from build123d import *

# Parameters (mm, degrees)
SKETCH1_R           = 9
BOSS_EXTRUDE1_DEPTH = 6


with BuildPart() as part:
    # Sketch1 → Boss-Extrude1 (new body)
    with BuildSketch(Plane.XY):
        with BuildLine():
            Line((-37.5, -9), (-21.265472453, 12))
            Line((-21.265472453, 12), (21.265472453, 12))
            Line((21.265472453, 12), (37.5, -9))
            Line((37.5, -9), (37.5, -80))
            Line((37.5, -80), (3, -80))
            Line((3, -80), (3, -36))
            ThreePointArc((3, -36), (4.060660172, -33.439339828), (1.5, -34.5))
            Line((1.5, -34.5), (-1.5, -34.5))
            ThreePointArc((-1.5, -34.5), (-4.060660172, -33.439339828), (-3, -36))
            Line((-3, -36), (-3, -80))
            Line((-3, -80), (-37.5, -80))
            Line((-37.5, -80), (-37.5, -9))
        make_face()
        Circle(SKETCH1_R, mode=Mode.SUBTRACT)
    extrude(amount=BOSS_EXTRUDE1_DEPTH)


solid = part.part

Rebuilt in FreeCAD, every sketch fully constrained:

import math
import FreeCAD as App
import Part
import Sketcher

doc = App.newDocument("Part")
params = doc.addObject("Spreadsheet::Sheet", "Params")
for row, (alias, value) in enumerate([
    ("sketch1_diameter", "18 mm"),
    ("sketch1_radius", "1.5 mm"),
    ("sketch1_width", "3 mm"),
    ("sketch1_height", "71 mm"),
    ("sketch1_height2", "44 mm"),
    ("pad1_length", "6 mm"),
], start=1):
    params.set(f"A{row}", alias)
    params.set(f"B{row}", "=" + value)
    params.setAlias(f"B{row}", alias)

body = doc.addObject("PartDesign::Body", "Body")

# Sketch on XY plane
sketch1 = body.newObject("Sketcher::SketchObject", "Sketch")
sketch1.AttachmentSupport = (doc.getObject("XY_Plane"), [""])
sketch1.MapMode = "FlatFace"
sketch1.addGeometry(Part.LineSegment(App.Vector(-21.3, 12, 0), App.Vector(-37.5, -9, 0)), False)
sketch1.addGeometry(Part.LineSegment(App.Vector(-37.5, -9, 0), App.Vector(-37.5, -80, 0)), False)
sketch1.addGeometry(Part.LineSegment(App.Vector(-37.5, -80, 0), App.Vector(-3, -80, 0)), False)
sketch1.addGeometry(Part.LineSegment(App.Vector(-3, -80, 0), App.Vector(-3, -36, 0)), False)
sketch1.addGeometry(Part.ArcOfCircle(Part.Circle(App.Vector(-3, -34.5, 0), App.Vector(0, 0, 1), 1.5), math.radians(0), math.radians(270)), False)
sketch1.addGeometry(Part.LineSegment(App.Vector(-1.5, -34.5, 0), App.Vector(1.5, -34.5, 0)), False)
sketch1.addGeometry(Part.ArcOfCircle(Part.Circle(App.Vector(3, -34.5, 0), App.Vector(0, 0, 1), 1.5), math.radians(-90), math.radians(180)), False)
sketch1.addGeometry(Part.LineSegment(App.Vector(3, -36, 0), App.Vector(3, -80, 0)), False)
sketch1.addGeometry(Part.LineSegment(App.Vector(3, -80, 0), App.Vector(37.5, -80, 0)), False)
sketch1.addGeometry(Part.LineSegment(App.Vector(37.5, -80, 0), App.Vector(37.5, -9, 0)), False)
sketch1.addGeometry(Part.LineSegment(App.Vector(37.5, -9, 0), App.Vector(21.3, 12, 0)), False)
sketch1.addGeometry(Part.LineSegment(App.Vector(21.3, 12, 0), App.Vector(-21.3, 12, 0)), False)
sketch1.addGeometry(Part.Circle(App.Vector(0, 0, 0), App.Vector(0, 0, 1), 9), False)
sketch1.addConstraint(Sketcher.Constraint("Coincident", 0, 2, 1, 1))
sketch1.addConstraint(Sketcher.Constraint("Coincident", 1, 2, 2, 1))
sketch1.addConstraint(Sketcher.Constraint("Coincident", 2, 2, 3, 1))
sketch1.addConstraint(Sketcher.Constraint("Coincident", 3, 2, 4, 2))
sketch1.addConstraint(Sketcher.Constraint("Coincident", 4, 1, 5, 1))
sketch1.addConstraint(Sketcher.Constraint("Coincident", 5, 2, 6, 2))
sketch1.addConstraint(Sketcher.Constraint("Coincident", 6, 1, 7, 1))
sketch1.addConstraint(Sketcher.Constraint("Coincident", 7, 2, 8, 1))
sketch1.addConstraint(Sketcher.Constraint("Coincident", 8, 2, 9, 1))
sketch1.addConstraint(Sketcher.Constraint("Coincident", 9, 2, 10, 1))
sketch1.addConstraint(Sketcher.Constraint("Coincident", 10, 2, 11, 1))
sketch1.addConstraint(Sketcher.Constraint("Coincident", 11, 2, 0, 1))
sketch1.addConstraint(Sketcher.Constraint("Vertical", 1))
sketch1.addConstraint(Sketcher.Constraint("Horizontal", 2))
sketch1.addConstraint(Sketcher.Constraint("Vertical", 3))
sketch1.addConstraint(Sketcher.Constraint("Horizontal", 5))
sketch1.addConstraint(Sketcher.Constraint("Vertical", 7))
sketch1.addConstraint(Sketcher.Constraint("Horizontal", 8))
sketch1.addConstraint(Sketcher.Constraint("Vertical", 9))
sketch1.addConstraint(Sketcher.Constraint("Horizontal", 11))
sketch1.addConstraint(Sketcher.Constraint("Coincident", 12, 3, -1, 1))
sketch1.addConstraint(Sketcher.Constraint("Equal", 4, 6))
sketch1.addConstraint(Sketcher.Constraint("Symmetric", 4, 3, 6, 3, -2))
sketch1.addConstraint(Sketcher.Constraint("Symmetric", 2, 2, 7, 2, -2))
sketch1.addConstraint(Sketcher.Constraint("Symmetric", 0, 2, 9, 2, -2))
sketch1.addConstraint(Sketcher.Constraint("Horizontal", 6, 3, 4, 1))
sketch1.addConstraint(Sketcher.Constraint("Vertical", 4, 3, 2, 2))
sketch1.addConstraint(Sketcher.Constraint("Equal", 0, 10))
sketch1.addConstraint(Sketcher.Constraint("Diameter", 12, 18.0))
sketch1.addConstraint(Sketcher.Constraint("Radius", 4, 1.5))
sketch1.addConstraint(Sketcher.Constraint("DistanceX", 5, 1, 5, 2, 3.0))
sketch1.addConstraint(Sketcher.Constraint("DistanceY", 1, 2, 1, 1, 71.0))
sketch1.addConstraint(Sketcher.Constraint("DistanceY", 3, 1, 3, 2, 44.0))
sketch1.addConstraint(Sketcher.Constraint("DistanceX", 2, 1, 2, 2, 34.5))
sketch1.addConstraint(Sketcher.Constraint("DistanceY", 0, 2, -1, 1, 9.0))
sketch1.addConstraint(Sketcher.Constraint("DistanceY", -1, 1, 10, 2, 12.0))
sketch1.addConstraint(Sketcher.Constraint("DistanceX", 11, 2, 11, 1, 42.530945))
sketch1.setExpression("Constraints[28]", "Params.sketch1_diameter")
sketch1.setExpression("Constraints[29]", "Params.sketch1_radius")
sketch1.setExpression("Constraints[30]", "Params.sketch1_width")
sketch1.setExpression("Constraints[31]", "Params.sketch1_height")
sketch1.setExpression("Constraints[32]", "Params.sketch1_height2")
pad1 = body.newObject("PartDesign::Pad", "Pad")
pad1.Profile = sketch1
pad1.setExpression("Length", "Params.pad1_length")

doc.recompute()
